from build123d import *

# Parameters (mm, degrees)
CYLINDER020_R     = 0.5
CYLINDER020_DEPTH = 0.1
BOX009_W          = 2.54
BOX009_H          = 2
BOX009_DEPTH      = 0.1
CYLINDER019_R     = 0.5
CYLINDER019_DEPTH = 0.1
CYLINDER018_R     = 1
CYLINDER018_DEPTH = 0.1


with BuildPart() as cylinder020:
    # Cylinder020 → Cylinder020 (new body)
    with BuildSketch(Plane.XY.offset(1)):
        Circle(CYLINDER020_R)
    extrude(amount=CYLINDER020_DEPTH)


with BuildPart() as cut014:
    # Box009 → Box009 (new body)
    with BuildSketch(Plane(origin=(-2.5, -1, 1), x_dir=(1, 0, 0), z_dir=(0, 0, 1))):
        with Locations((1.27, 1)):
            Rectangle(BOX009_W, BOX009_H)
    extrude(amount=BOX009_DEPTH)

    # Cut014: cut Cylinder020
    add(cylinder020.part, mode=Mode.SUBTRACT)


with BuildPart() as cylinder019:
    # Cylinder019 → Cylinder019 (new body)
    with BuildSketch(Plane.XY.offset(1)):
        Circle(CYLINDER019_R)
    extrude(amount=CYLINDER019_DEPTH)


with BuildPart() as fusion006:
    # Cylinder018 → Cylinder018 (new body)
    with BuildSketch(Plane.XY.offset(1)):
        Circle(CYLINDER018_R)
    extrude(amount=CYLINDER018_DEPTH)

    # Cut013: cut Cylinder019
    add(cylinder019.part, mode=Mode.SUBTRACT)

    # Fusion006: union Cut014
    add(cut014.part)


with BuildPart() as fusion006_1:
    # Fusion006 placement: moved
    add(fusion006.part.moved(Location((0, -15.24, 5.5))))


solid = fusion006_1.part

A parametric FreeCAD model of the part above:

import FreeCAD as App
import Part
import Sketcher

doc = App.newDocument("Part")
params = doc.addObject("Spreadsheet::Sheet", "Params")
for row, (alias, value) in enumerate([
    ("sketch1_diameter", "1 mm"),
    ("pad1_length", "0.1 mm"),
    ("sketch2_height", "2 mm"),
    ("sketch2_width", "2.54 mm"),
    ("pad2_length", "0.1 mm"),
    ("sketch3_diameter", "1 mm"),
    ("pad3_length", "0.1 mm"),
    ("sketch4_diameter", "2 mm"),
    ("pad4_length", "0.1 mm"),
], start=1):
    params.set(f"A{row}", alias)
    params.set(f"B{row}", "=" + value)
    params.setAlias(f"B{row}", alias)

body = doc.addObject("PartDesign::Body", "Body")

# Sketch on XY plane
sketch1 = body.newObject("Sketcher::SketchObject", "Sketch")
sketch1.AttachmentSupport = (doc.getObject("XY_Plane"), [""])
sketch1.MapMode = "FlatFace"
sketch1.AttachmentOffset = App.Placement(App.Vector(0, 0, 1), App.Rotation())
sketch1.addGeometry(Part.Circle(App.Vector(0, 0, 0), App.Vector(0, 0, 1), 0.5), False)
sketch1.addConstraint(Sketcher.Constraint("Coincident", 0, 3, -1, 1))
sketch1.addConstraint(Sketcher.Constraint("Diameter", 0, 1.0))
sketch1.setExpression("Constraints[1]", "Params.sketch1_diameter")
pad1 = body.newObject("PartDesign::Pad", "Pad")
pad1.Profile = sketch1
pad1.setExpression("Length", "Params.pad1_length")
body2 = doc.addObject("PartDesign::Body", "Body001")

# Sketch on XY plane
sketch2 = body2.newObject("Sketcher::SketchObject", "Sketch001")
sketch2.AttachmentSupport = (doc.getObject("XY_Plane001"), [""])
sketch2.MapMode = "FlatFace"
sketch2.AttachmentOffset = App.Placement(App.Vector(0, 0, 1), App.Rotation())
sketch2.addGeometry(Part.LineSegment(App.Vector(-2.5, 1, 0), App.Vector(-2.5, -1, 0)), False)
sketch2.addGeometry(Part.LineSegment(App.Vector(-2.5, -1, 0), App.Vector(0, -1, 0)), False)
sketch2.addGeometry(Part.LineSegment(App.Vector(0, -1, 0), App.Vector(0, 1, 0)), False)
sketch2.addGeometry(Part.LineSegment(App.Vector(0, 1, 0), App.Vector(-2.5, 1, 0)), False)
sketch2.addConstraint(Sketcher.Constraint("Coincident", 0, 2, 1, 1))
sketch2.addConstraint(Sketcher.Constraint("Coincident", 1, 2, 2, 1))
sketch2.addConstraint(Sketcher.Constraint("Coincident", 2, 2, 3, 1))
sketch2.addConstraint(Sketcher.Constraint("Coincident", 3, 2, 0, 1))
sketch2.addConstraint(Sketcher.Constraint("Vertical", 0))
sketch2.addConstraint(Sketcher.Constraint("Horizontal", 1))
sketch2.addConstraint(Sketcher.Constraint("Vertical", 2))
sketch2.addConstraint(Sketcher.Constraint("Horizontal", 3))
sketch2.addConstraint(Sketcher.Constraint("DistanceY", 0, 2, 0, 1, 2.0))
sketch2.addConstraint(Sketcher.Constraint("DistanceY", 0, 2, -1, 1, 1.0))
sketch2.addConstraint(Sketcher.Constraint("DistanceX", 1, 1, 1, 2, 2.54))
sketch2.addConstraint(Sketcher.Constraint("DistanceX", 0, 2, -1, 1, 2.5))
sketch2.setExpression("Constraints[8]", "Params.sketch2_height")
sketch2.setExpression("Constraints[10]", "Params.sketch2_width")
pad2 = body2.newObject("PartDesign::Pad", "Pad001")
pad2.Profile = sketch2
pad2.setExpression("Length", "Params.pad2_length")
doc.recompute()

boolean = body2.newObject("PartDesign::Boolean", "Boolean")
boolean.Type = "Cut"
boolean.addObjects([body])
body3 = doc.addObject("PartDesign::Body", "Body002")

# Sketch on XY plane
sketch3 = body3.newObject("Sketcher::SketchObject", "Sketch002")
sketch3.AttachmentSupport = (doc.getObject("XY_Plane002"), [""])
sketch3.MapMode = "FlatFace"
sketch3.AttachmentOffset = App.Placement(App.Vector(0, 0, 1), App.Rotation())
sketch3.addGeometry(Part.Circle(App.Vector(0, 0, 0), App.Vector(0, 0, 1), 0.5), False)
sketch3.addConstraint(Sketcher.Constraint("Coincident", 0, 3, -1, 1))
sketch3.addConstraint(Sketcher.Constraint("Diameter", 0, 1.0))
sketch3.setExpression("Constraints[1]", "Params.sketch3_diameter")
pad3 = body3.newObject("PartDesign::Pad", "Pad002")
pad3.Profile = sketch3
pad3.setExpression("Length", "Params.pad3_length")
body4 = doc.addObject("PartDesign::Body", "Body003")

# Sketch on XY plane
sketch4 = body4.newObject("Sketcher::SketchObject", "Sketch003")
sketch4.AttachmentSupport = (doc.getObject("XY_Plane003"), [""])
sketch4.MapMode = "FlatFace"
sketch4.AttachmentOffset = App.Placement(App.Vector(0, 0, 1), App.Rotation())
sketch4.addGeometry(Part.Circle(App.Vector(0, 0, 0), App.Vector(0, 0, 1), 1), False)
sketch4.addConstraint(Sketcher.Constraint("Coincident", 0, 3, -1, 1))
sketch4.addConstraint(Sketcher.Constraint("Diameter", 0, 2.0))
sketch4.setExpression("Constraints[1]", "Params.sketch4_diameter")
pad4 = body4.newObject("PartDesign::Pad", "Pad003")
pad4.Profile = sketch4
pad4.setExpression("Length", "Params.pad4_length")
doc.recompute()

boolean2 = body4.newObject("PartDesign::Boolean", "Boolean001")
boolean2.Type = "Cut"
boolean2.addObjects([body3])
doc.recompute()

boolean3 = body4.newObject("PartDesign::Boolean", "Boolean002")
boolean3.Type = "Fuse"
boolean3.addObjects([body2])
body5 = doc.addObject("PartDesign::Body", "Body004")
doc.recompute()

body4.Placement = App.Placement(App.Vector(0, -15.24, 5.5), App.Rotation(App.Vector(0, 0, 1), 0))
boolean4 = body5.newObject("PartDesign::Boolean", "Boolean003")
boolean4.Type = "Fuse"
boolean4.addObjects([body4])

doc.recompute()
